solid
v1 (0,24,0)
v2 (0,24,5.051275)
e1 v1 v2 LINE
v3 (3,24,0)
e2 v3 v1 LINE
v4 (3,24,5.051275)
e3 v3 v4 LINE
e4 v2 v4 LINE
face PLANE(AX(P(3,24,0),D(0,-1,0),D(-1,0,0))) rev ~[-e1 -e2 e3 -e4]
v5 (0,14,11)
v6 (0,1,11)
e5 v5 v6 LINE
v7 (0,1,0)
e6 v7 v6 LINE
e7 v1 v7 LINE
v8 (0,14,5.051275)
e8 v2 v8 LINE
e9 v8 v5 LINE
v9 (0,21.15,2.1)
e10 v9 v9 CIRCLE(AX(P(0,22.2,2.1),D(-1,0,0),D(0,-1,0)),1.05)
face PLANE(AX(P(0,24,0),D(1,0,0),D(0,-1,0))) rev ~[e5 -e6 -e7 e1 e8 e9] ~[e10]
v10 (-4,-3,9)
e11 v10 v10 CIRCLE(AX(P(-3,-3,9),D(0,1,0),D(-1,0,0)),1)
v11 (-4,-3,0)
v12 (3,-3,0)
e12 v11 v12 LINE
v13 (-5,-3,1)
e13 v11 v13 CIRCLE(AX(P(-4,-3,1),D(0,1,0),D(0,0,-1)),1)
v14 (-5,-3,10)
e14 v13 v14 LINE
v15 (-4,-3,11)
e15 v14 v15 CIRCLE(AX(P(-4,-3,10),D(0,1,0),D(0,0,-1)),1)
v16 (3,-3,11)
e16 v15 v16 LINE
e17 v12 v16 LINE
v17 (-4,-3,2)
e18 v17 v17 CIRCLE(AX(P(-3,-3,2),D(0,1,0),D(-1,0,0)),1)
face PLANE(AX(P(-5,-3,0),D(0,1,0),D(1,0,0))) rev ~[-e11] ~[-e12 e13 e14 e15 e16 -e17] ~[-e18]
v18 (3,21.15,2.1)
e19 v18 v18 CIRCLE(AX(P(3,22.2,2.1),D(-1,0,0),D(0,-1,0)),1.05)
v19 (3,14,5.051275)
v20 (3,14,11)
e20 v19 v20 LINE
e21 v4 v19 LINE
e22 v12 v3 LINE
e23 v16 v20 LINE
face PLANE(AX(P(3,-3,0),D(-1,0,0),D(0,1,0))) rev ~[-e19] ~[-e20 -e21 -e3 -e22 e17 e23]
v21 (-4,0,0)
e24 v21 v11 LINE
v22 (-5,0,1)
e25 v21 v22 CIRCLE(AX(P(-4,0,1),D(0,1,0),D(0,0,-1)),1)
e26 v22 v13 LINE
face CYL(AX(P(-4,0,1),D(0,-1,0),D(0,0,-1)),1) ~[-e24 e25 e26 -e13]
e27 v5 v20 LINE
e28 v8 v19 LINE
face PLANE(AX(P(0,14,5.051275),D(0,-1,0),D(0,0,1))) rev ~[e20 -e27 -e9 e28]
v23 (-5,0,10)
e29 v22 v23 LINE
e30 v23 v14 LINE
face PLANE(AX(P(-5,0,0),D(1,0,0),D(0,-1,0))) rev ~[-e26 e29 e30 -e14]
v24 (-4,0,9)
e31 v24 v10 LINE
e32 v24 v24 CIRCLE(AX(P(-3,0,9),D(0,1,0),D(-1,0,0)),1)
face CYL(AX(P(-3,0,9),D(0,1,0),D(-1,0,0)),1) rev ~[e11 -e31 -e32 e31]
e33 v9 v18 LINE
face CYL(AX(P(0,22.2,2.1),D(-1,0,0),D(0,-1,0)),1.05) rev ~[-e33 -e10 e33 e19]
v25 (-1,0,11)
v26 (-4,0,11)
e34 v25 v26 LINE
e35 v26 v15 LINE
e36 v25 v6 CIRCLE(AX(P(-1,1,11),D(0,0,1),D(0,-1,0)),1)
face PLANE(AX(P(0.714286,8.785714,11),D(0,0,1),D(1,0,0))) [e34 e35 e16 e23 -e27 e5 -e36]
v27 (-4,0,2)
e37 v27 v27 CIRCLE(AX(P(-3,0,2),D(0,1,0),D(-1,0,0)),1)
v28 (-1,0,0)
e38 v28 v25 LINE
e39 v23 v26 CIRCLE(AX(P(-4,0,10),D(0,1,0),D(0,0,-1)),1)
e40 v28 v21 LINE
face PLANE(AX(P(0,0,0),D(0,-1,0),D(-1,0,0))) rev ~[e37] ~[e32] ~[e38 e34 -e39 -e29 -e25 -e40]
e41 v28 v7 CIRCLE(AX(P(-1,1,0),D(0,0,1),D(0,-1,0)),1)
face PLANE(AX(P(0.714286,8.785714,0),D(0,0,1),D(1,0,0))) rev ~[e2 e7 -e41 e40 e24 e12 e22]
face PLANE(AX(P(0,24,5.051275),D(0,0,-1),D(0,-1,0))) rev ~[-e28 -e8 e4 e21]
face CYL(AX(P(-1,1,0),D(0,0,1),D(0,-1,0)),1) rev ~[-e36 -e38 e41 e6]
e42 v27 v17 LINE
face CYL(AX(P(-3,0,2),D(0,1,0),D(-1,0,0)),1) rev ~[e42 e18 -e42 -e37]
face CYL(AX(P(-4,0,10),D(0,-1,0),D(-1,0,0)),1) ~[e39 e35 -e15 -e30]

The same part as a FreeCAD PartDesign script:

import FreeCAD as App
import Part
import Sketcher
from FreeCAD import Vector


def edges_at(feature, points):
    """Names of the edges that pass closest to the given points."""
    edges = feature.Shape.Edges
    near = lambda p: min(range(len(edges)), key=lambda i: edges[i].distToShape(Part.Vertex(*p))[0])
    return sorted({f"Edge{near(p) + 1}" for p in points})

doc = App.newDocument("Part")
body = doc.addObject("PartDesign::Body", "Body")

# Sketch on XY plane
sketch1 = body.newObject("Sketcher::SketchObject", "Sketch")
sketch1.AttachmentSupport = (doc.getObject("XY_Plane"), [""])
sketch1.MapMode = "FlatFace"
sketch1.addGeometry(Part.LineSegment(Vector(0, 0, 0), Vector(-5, 0, 0)), False)
sketch1.addGeometry(Part.LineSegment(Vector(-5, 0, 0), Vector(-5, -3, 0)), False)
sketch1.addGeometry(Part.LineSegment(Vector(-5, -3, 0), Vector(3, -3, 0)), False)
sketch1.addGeometry(Part.LineSegment(Vector(3, -3, 0), Vector(3, 24, 0)), False)
sketch1.addGeometry(Part.LineSegment(Vector(3, 24, 0), Vector(0, 24, 0)), False)
sketch1.addGeometry(Part.LineSegment(Vector(0, 24, 0), Vector(0, 0, 0)), False)
sketch1.addConstraint(Sketcher.Constraint("Coincident", 0, 2, 1, 1))
sketch1.addConstraint(Sketcher.Constraint("Coincident", 1, 2, 2, 1))
sketch1.addConstraint(Sketcher.Constraint("Coincident", 2, 2, 3, 1))
sketch1.addConstraint(Sketcher.Constraint("Coincident", 3, 2, 4, 1))
sketch1.addConstraint(Sketcher.Constraint("Coincident", 4, 2, 5, 1))
sketch1.addConstraint(Sketcher.Constraint("Coincident", 5, 2, 0, 1))
sketch1.addConstraint(Sketcher.Constraint("Horizontal", 0))
sketch1.addConstraint(Sketcher.Constraint("Vertical", 1))
sketch1.addConstraint(Sketcher.Constraint("Horizontal", 2))
sketch1.addConstraint(Sketcher.Constraint("Vertical", 3))
sketch1.addConstraint(Sketcher.Constraint("Horizontal", 4))
sketch1.addConstraint(Sketcher.Constraint("Vertical", 5))
sketch1.addConstraint(Sketcher.Constraint("Coincident", 5, 2, -1, 1))
sketch1.addConstraint(Sketcher.Constraint("Equal", 4, 1))
sketch1.addConstraint(Sketcher.Constraint("DistanceX", 0, 2, 0, 1, 5.0))
sketch1.addConstraint(Sketcher.Constraint("DistanceX", 2, 1, 2, 2, 8.0))
sketch1.addConstraint(Sketcher.Constraint("DistanceY", 3, 1, 3, 2, 27.0))
pad1 = body.newObject("PartDesign::Pad", "Pad")
pad1.Profile = sketch1
pad1.Length = 11

# Sketch on YZ plane
sketch2 = body.newObject("Sketcher::SketchObject", "Sketch001")
sketch2.AttachmentSupport = (doc.getObject("YZ_Plane"), [""])
sketch2.MapMode = "FlatFace"
sketch2.addGeometry(Part.LineSegment(Vector(24, 5.051275, 0), Vector(14, 5.051275, 0)), False)
sketch2.addGeometry(Part.LineSegment(Vector(14, 5.051275, 0), Vector(14, 13.051275, 0)), False)
sketch2.addGeometry(Part.LineSegment(Vector(14, 13.051275, 0), Vector(24, 13.051275, 0)), False)
sketch2.addGeometry(Part.LineSegment(Vector(24, 13.051275, 0), Vector(24, 5.051275, 0)), False)
sketch2.addConstraint(Sketcher.Constraint("Coincident", 0, 2, 1, 1))
sketch2.addConstraint(Sketcher.Constraint("Coincident", 1, 2, 2, 1))
sketch2.addConstraint(Sketcher.Constraint("Coincident", 2, 2, 3, 1))
sketch2.addConstraint(Sketcher.Constraint("Coincident", 3, 2, 0, 1))
sketch2.addConstraint(Sketcher.Constraint("Horizontal", 0))
sketch2.addConstraint(Sketcher.Constraint("Vertical", 1))
sketch2.addConstraint(Sketcher.Constraint("Horizontal", 2))
sketch2.addConstraint(Sketcher.Constraint("Vertical", 3))
sketch2.addConstraint(Sketcher.Constraint("DistanceX", 0, 2, 0, 1, 10.0))
sketch2.addConstraint(Sketcher.Constraint("DistanceY", 1, 1, 1, 2, 8.0))
sketch2.addConstraint(Sketcher.Constraint("DistanceX", -1, 1, 0, 2, 14.0))
sketch2.addConstraint(Sketcher.Constraint("DistanceY", -1, 1, 0, 2, 5.051275))
pocket1 = body.newObject("PartDesign::Pocket", "Pocket")
pocket1.Profile = sketch2
pocket1.Length = 5
pocket1.Reversed = True

# Sketch on YZ plane
sketch3 = body.newObject("Sketcher::SketchObject", "Sketch002")
sketch3.AttachmentSupport = (doc.getObject("YZ_Plane"), [""])
sketch3.MapMode = "FlatFace"
sketch3.addGeometry(Part.Circle(Vector(22.2, 2.1, 0), Vector(0, 0, 1), 1.05), False)
sketch3.addConstraint(Sketcher.Constraint("Diameter", 0, 2.1))
sketch3.addConstraint(Sketcher.Constraint("DistanceX", -1, 1, 0, 3, 22.2))
sketch3.addConstraint(Sketcher.Constraint("DistanceY", -1, 1, 0, 3, 2.1))
pocket2 = body.newObject("PartDesign::Pocket", "Pocket001")
pocket2.Profile = sketch3
pocket2.Length = 5
pocket2.Reversed = True
doc.recompute()

fillet = body.newObject("PartDesign::Fillet", "Fillet")
fillet.Base = (pocket2, edges_at(pocket2, [(0, 0, 5.5)]))
fillet.Radius = 1
doc.recompute()

fillet2 = body.newObject("PartDesign::Fillet", "Fillet001")
fillet2.Base = (fillet, edges_at(fillet, [(-5, -1.5, 0)]))
fillet2.Radius = 1
doc.recompute()

fillet3 = body.newObject("PartDesign::Fillet", "Fillet002")
fillet3.Base = (fillet2, edges_at(fillet2, [(-5, -1.5, 11)]))
fillet3.Radius = 1

# Sketch on XZ plane
sketch4 = body.newObject("Sketcher::SketchObject", "Sketch003")
sketch4.AttachmentSupport = (doc.getObject("XZ_Plane"), [""])
sketch4.MapMode = "FlatFace"
sketch4.addGeometry(Part.Circle(Vector(-3, 9, 0), Vector(0, 0, 1), 1), False)
sketch4.addGeometry(Part.Circle(Vector(-3, 2, 0), Vector(0, 0, 1), 1), False)
sketch4.addConstraint(Sketcher.Constraint("Equal", 0, 1))
sketch4.addConstraint(Sketcher.Constraint("Vertical", 0, 3, 1, 3))
sketch4.addConstraint(Sketcher.Constraint("Diameter", 0, 2.0))
sketch4.addConstraint(Sketcher.Constraint("DistanceX", 0, 3, -1, 1, 3.0))
sketch4.addConstraint(Sketcher.Constraint("DistanceY", -1, 1, 0, 3, 9.0))
sketch4.addConstraint(Sketcher.Constraint("DistanceY", -1, 1, 1, 3, 2.0))
pocket3 = body.newObject("PartDesign::Pocket", "Pocket002")
pocket3.Profile = sketch4
pocket3.Length = 5
pocket3.Reversed = True

doc.recompute()
